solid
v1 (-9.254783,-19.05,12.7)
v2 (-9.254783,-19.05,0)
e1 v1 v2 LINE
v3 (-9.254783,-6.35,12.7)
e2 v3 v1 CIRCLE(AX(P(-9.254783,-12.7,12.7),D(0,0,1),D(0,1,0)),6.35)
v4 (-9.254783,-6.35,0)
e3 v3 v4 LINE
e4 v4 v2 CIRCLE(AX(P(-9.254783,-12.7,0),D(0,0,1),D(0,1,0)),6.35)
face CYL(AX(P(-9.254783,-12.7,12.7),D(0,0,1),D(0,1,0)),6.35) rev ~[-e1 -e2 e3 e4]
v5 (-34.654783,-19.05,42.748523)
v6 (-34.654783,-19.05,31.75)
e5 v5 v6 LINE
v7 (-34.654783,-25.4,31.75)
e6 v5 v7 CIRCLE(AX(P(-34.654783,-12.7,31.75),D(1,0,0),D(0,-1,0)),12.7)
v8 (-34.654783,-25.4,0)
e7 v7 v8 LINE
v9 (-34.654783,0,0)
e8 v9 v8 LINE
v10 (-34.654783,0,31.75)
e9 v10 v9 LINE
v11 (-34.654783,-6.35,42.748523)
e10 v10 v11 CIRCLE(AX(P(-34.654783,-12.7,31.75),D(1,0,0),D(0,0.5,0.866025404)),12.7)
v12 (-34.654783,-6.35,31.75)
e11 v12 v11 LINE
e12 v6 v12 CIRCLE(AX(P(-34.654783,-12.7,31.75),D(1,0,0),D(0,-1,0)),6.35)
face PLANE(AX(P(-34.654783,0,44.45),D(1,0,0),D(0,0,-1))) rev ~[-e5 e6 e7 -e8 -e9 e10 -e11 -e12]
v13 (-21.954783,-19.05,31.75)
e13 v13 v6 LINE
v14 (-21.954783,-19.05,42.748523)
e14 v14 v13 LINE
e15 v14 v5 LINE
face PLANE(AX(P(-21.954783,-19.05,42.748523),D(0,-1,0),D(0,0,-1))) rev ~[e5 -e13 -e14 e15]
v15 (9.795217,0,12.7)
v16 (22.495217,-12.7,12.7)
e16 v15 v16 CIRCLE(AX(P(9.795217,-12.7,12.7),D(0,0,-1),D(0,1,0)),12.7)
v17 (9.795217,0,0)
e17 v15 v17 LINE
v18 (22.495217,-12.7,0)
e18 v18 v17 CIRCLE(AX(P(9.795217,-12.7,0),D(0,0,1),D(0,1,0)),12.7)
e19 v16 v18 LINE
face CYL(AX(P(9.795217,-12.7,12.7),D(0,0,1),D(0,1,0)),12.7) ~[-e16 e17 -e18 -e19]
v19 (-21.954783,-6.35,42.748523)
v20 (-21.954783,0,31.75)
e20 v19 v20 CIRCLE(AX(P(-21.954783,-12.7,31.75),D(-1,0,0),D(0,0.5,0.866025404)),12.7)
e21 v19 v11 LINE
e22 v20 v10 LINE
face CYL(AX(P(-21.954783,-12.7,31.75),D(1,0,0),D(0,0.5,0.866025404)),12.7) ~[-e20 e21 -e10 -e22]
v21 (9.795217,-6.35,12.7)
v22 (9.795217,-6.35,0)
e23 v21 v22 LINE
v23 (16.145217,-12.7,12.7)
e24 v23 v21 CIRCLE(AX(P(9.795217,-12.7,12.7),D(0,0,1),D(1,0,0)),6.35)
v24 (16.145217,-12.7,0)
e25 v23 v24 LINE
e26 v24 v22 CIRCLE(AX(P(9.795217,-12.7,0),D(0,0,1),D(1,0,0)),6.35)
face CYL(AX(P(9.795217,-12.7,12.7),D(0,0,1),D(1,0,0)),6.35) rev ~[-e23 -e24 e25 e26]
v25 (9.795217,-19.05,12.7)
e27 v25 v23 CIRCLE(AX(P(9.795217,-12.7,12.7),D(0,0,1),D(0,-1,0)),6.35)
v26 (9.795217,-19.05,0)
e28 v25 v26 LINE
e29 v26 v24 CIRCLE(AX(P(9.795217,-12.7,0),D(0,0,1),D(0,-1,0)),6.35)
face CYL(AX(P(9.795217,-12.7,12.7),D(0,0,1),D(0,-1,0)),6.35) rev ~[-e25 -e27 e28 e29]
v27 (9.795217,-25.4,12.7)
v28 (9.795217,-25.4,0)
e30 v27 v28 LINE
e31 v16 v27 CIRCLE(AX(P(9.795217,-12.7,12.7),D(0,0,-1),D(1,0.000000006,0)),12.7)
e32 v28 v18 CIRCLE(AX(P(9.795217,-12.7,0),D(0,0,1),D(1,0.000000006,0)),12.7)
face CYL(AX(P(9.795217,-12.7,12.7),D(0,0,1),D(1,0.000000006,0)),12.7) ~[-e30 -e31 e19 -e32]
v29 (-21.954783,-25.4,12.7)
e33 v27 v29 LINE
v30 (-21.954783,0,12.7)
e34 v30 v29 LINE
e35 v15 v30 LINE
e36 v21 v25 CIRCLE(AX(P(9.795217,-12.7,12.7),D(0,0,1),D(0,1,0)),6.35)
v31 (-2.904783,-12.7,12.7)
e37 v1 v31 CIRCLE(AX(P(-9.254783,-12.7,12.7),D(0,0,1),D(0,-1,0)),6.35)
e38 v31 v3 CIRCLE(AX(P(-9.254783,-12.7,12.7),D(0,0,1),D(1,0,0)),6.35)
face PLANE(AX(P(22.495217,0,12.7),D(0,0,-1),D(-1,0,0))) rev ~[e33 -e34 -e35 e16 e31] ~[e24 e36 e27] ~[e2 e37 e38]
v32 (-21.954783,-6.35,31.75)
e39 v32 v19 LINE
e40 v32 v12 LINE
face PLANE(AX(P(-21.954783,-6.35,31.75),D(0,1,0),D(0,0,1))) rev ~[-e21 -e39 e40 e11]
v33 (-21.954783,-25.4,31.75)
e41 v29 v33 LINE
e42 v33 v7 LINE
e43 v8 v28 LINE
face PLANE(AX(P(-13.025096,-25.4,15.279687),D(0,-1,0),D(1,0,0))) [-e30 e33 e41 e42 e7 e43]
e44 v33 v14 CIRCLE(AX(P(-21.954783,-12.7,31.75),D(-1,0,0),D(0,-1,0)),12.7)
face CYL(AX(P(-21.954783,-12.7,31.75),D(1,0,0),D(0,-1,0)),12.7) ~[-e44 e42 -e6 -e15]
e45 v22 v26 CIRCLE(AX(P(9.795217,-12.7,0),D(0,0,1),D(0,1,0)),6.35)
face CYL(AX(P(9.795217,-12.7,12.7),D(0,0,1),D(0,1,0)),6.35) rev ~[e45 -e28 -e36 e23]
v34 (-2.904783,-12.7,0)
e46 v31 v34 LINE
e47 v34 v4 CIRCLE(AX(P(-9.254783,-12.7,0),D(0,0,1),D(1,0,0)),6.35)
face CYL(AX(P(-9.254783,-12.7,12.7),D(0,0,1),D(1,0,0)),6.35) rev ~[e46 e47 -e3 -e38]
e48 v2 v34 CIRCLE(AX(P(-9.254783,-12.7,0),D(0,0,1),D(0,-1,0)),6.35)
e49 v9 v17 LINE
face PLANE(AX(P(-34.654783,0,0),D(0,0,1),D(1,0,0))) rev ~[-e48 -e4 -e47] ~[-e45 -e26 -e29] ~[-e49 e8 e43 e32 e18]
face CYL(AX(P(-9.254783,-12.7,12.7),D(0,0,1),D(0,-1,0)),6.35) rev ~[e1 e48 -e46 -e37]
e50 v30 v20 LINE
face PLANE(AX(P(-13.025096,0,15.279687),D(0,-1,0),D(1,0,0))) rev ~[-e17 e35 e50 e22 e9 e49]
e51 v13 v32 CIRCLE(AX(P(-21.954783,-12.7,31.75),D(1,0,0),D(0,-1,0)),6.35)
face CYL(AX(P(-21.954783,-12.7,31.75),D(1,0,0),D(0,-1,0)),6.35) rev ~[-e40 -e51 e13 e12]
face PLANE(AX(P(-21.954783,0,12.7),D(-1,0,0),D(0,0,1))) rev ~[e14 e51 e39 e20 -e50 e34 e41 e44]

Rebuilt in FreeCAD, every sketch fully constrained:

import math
import FreeCAD as App
import Part
import Sketcher
from FreeCAD import Vector
Q = App.Units.Quantity

doc = App.newDocument("Part")
params = doc.addObject("Spreadsheet::Sheet", "Params")
for row, (alias, value) in enumerate([
    ("sketch1_width", "0.5 in"),
    ("sketch1_width2", "2.25 in"),
    ("pad1_length", "1 in"),
    ("sketch2_radius", "0.5 in"),
    ("sketch2_radius2", "0.25 in"),
    ("sketch3_radius", "0.5 in"),
    ("sketch3_radius2", "0.25 in"),
    ("sketch3_height", "0.5 in"),
], start=1):
    params.set(f"A{row}", alias)
    params.set(f"B{row}", "=" + value)
    params.setAlias(f"B{row}", alias)

body = doc.addObject("PartDesign::Body", "Body")

# Sketch on XZ plane
sketch1 = body.newObject("Sketcher::SketchObject", "Sketch")
sketch1.AttachmentSupport = (doc.getObject("XZ_Plane"), [""])
sketch1.MapMode = "FlatFace"
sketch1.addGeometry(Part.LineSegment(Vector(-35, 44, 0), Vector(-35, 0, 0)), False)
sketch1.addGeometry(Part.LineSegment(Vector(-35, 0, 0), Vector(22, 0, 0)), False)
sketch1.addGeometry(Part.LineSegment(Vector(22, 0, 0), Vector(22, 13, 0)), False)
sketch1.addGeometry(Part.LineSegment(Vector(22, 13, 0), Vector(-22, 13, 0)), False)
sketch1.addGeometry(Part.LineSegment(Vector(-22, 13, 0), Vector(-22, 44, 0)), False)
sketch1.addGeometry(Part.LineSegment(Vector(-22, 44, 0), Vector(-35, 44, 0)), False)
sketch1.addConstraint(Sketcher.Constraint("Coincident", 0, 2, 1, 1))
sketch1.addConstraint(Sketcher.Constraint("Coincident", 1, 2, 2, 1))
sketch1.addConstraint(Sketcher.Constraint("Coincident", 2, 2, 3, 1))
sketch1.addConstraint(Sketcher.Constraint("Coincident", 3, 2, 4, 1))
sketch1.addConstraint(Sketcher.Constraint("Coincident", 4, 2, 5, 1))
sketch1.addConstraint(Sketcher.Constraint("Coincident", 5, 2, 0, 1))
sketch1.addConstraint(Sketcher.Constraint("Vertical", 0))
sketch1.addConstraint(Sketcher.Constraint("Horizontal", 1))
sketch1.addConstraint(Sketcher.Constraint("Vertical", 2))
sketch1.addConstraint(Sketcher.Constraint("Horizontal", 3))
sketch1.addConstraint(Sketcher.Constraint("Vertical", 4))
sketch1.addConstraint(Sketcher.Constraint("Horizontal", 5))
sketch1.addConstraint(Sketcher.Constraint("PointOnObject", 0, 2, -1))
sketch1.addConstraint(Sketcher.Constraint("Equal", 3, 0))
sketch1.addConstraint(Sketcher.Constraint("Equal", 5, 2))
sketch1.addConstraint(Sketcher.Constraint("DistanceX", 5, 2, 5, 1, Q("0.5 in")))
sketch1.addConstraint(Sketcher.Constraint("DistanceX", 1, 1, 1, 2, Q("2.25 in")))
sketch1.addConstraint(Sketcher.Constraint("DistanceX", 0, 2, -1, 1, 34.654783))
sketch1.setExpression("Constraints[15]", "Params.sketch1_width")
sketch1.setExpression("Constraints[16]", "Params.sketch1_width2")
pad1 = body.newObject("PartDesign::Pad", "Pad")
pad1.Profile = sketch1
pad1.setExpression("Length", "Params.pad1_length")

# Sketch on XY plane
sketch2 = body.newObject("Sketcher::SketchObject", "Sketch001")
sketch2.AttachmentSupport = (doc.getObject("XY_Plane"), [""])
sketch2.MapMode = "FlatFace"
sketch2.AttachmentOffset = App.Placement(Vector(0, 0, 0.5 * 25.4), App.Rotation())
sketch2.addGeometry(Part.ArcOfCircle(Part.Circle(Vector(-9, -13, 0), Vector(0, 0, 1), 6), math.radians(0), math.radians(90)), False)
sketch2.addGeometry(Part.ArcOfCircle(Part.Circle(Vector(-9, -13, 0), Vector(0, 0, 1), 6), math.radians(90), math.radians(270)), False)
sketch2.addGeometry(Part.ArcOfCircle(Part.Circle(Vector(-9, -13, 0), Vector(0, 0, 1), 6), math.radians(-90), math.radians(0)), False)
sketch2.addGeometry(Part.ArcOfCircle(Part.Circle(Vector(10, -13, 0), Vector(0, 0, 1), 6), math.radians(90), math.radians(270)), False)
sketch2.addGeometry(Part.ArcOfCircle(Part.Circle(Vector(10, -13, 0), Vector(0, 0, 1), 6), math.radians(-90), math.radians(0)), False)
sketch2.addGeometry(Part.ArcOfCircle(Part.Circle(Vector(10, -13, 0), Vector(0, 0, 1), 6), math.radians(0), math.radians(90)), False)
sketch2.addGeometry(Part.LineSegment(Vector(22, 0, 0), Vector(10, 0, 0)), False)
sketch2.addGeometry(Part.ArcOfCircle(Part.Circle(Vector(10, -13, 0), Vector(0, 0, 1), 13), math.radians(0), math.radians(90)), False)
sketch2.addGeometry(Part.LineSegment(Vector(22, -13, 0), Vector(22, 0, 0)), False)
sketch2.addGeometry(Part.LineSegment(Vector(22, -25, 0), Vector(22, -13, 0)), False)
sketch2.addGeometry(Part.ArcOfCircle(Part.Circle(Vector(10, -13, 0), Vector(0, 0, 1), 13), math.radians(-90), math.radians(0)), False)
sketch2.addGeometry(Part.LineSegment(Vector(10, -25, 0), Vector(22, -25, 0)), False)
sketch2.addConstraint(Sketcher.Constraint("Tangent", 0, 2, 1, 1))
sketch2.addConstraint(Sketcher.Constraint("Tangent", 1, 2, 2, 1))
sketch2.addConstraint(Sketcher.Constraint("Tangent", 2, 2, 0, 1))
sketch2.addConstraint(Sketcher.Constraint("Tangent", 3, 2, 4, 1))
sketch2.addConstraint(Sketcher.Constraint("Tangent", 4, 2, 5, 1))
sketch2.addConstraint(Sketcher.Constraint("Tangent", 5, 2, 3, 1))
sketch2.addConstraint(Sketcher.Constraint("Tangent", 6, 2, 7, 2))
sketch2.addConstraint(Sketcher.Constraint("Tangent", 7, 1, 8, 1))
sketch2.addConstraint(Sketcher.Constraint("Coincident", 8, 2, 6, 1))
sketch2.addConstraint(Sketcher.Constraint("Tangent", 9, 2, 10, 2))
sketch2.addConstraint(Sketcher.Constraint("Tangent", 10, 1, 11, 1))
sketch2.addConstraint(Sketcher.Constraint("Coincident", 11, 2, 9, 1))
sketch2.addConstraint(Sketcher.Constraint("Horizontal", 6))
sketch2.addConstraint(Sketcher.Constraint("Vertical", 8))
sketch2.addConstraint(Sketcher.Constraint("Vertical", 9))
sketch2.addConstraint(Sketcher.Constraint("Horizontal", 11))
sketch2.addConstraint(Sketcher.Constraint("Coincident", 7, 3, 3, 3))
sketch2.addConstraint(Sketcher.Constraint("Coincident", 10, 3, 3, 3))
sketch2.addConstraint(Sketcher.Constraint("Equal", 2, 3))
sketch2.addConstraint(Sketcher.Constraint("Equal", 7, 10))
sketch2.addConstraint(Sketcher.Constraint("PointOnObject", 6, 2, -1))
sketch2.addConstraint(Sketcher.Constraint("Horizontal", 2, 3, 3, 3))
sketch2.addConstraint(Sketcher.Constraint("Horizontal", 10, 3, 2, 2))
sketch2.addConstraint(Sketcher.Constraint("Horizontal", 2, 2, 4, 2))
sketch2.addConstraint(Sketcher.Constraint("Vertical", 2, 3, 0, 2))
sketch2.addConstraint(Sketcher.Constraint("Vertical", 0, 2, 1, 2))
sketch2.addConstraint(Sketcher.Constraint("Vertical", 10, 3, 3, 2))
sketch2.addConstraint(Sketcher.Constraint("Vertical", 3, 2, 5, 2))
sketch2.addConstraint(Sketcher.Constraint("Radius", 7, Q("0.5 in")))
sketch2.addConstraint(Sketcher.Constraint("Radius", 0, Q("0.25 in")))
sketch2.addConstraint(Sketcher.Constraint("DistanceX", 0, 3, 3, 3, Q("0.75 in")))
sketch2.addConstraint(Sketcher.Constraint("DistanceX", 0, 3, -1, 1, 9.254783))
sketch2.setExpression("Constraints[28]", "Params.sketch2_radius")
sketch2.setExpression("Constraints[29]", "Params.sketch2_radius2")
pocket1 = body.newObject("PartDesign::Pocket", "Pocket")
pocket1.Profile = sketch2
pocket1.Type = "ThroughAll"

# Sketch on YZ plane
sketch3 = body.newObject("Sketcher::SketchObject", "Sketch002")
sketch3.AttachmentSupport = (doc.getObject("YZ_Plane"), [""])
sketch3.MapMode = "FlatFace"
sketch3.AttachmentOffset = App.Placement(Vector(0, 0, -21.954783), App.Rotation())
sketch3.addGeometry(Part.LineSegment(Vector(-19, 43, 0), Vector(-19, 32, 0)), False)
sketch3.addGeometry(Part.ArcOfCircle(Part.Circle(Vector(-13, 32, 0), Vector(0, 0, 1), 6), math.radians(180), math.radians(360)), False)
sketch3.addGeometry(Part.LineSegment(Vector(-6, 32, 0), Vector(-6, 43, 0)), False)
sketch3.addGeometry(Part.ArcOfCircle(Part.Circle(Vector(-13, 32, 0), Vector(0, 0, 1), 13), math.radians(0), math.radians(60)), False)
sketch3.addGeometry(Part.LineSegment(Vector(0, 32, 0), Vector(0, 44, 0)), False)
sketch3.addGeometry(Part.LineSegment(Vector(0, 44, 0), Vector(-25, 44, 0)), False)
sketch3.addGeometry(Part.LineSegment(Vector(-25, 44, 0), Vector(-25, 32, 0)), False)
sketch3.addGeometry(Part.ArcOfCircle(Part.Circle(Vector(-13, 32, 0), Vector(0, 0, 1), 13), math.radians(120), math.radians(180)), False)
sketch3.addConstraint(Sketcher.Constraint("Tangent", 0, 2, 1, 1))
sketch3.addConstraint(Sketcher.Constraint("Tangent", 1, 2, 2, 1))
sketch3.addConstraint(Sketcher.Constraint("Coincident", 2, 2, 3, 2))
sketch3.addConstraint(Sketcher.Constraint("Tangent", 3, 1, 4, 1))
sketch3.addConstraint(Sketcher.Constraint("Coincident", 4, 2, 5, 1))
sketch3.addConstraint(Sketcher.Constraint("Coincident", 5, 2, 6, 1))
sketch3.addConstraint(Sketcher.Constraint("Tangent", 6, 2, 7, 2))
sketch3.addConstraint(Sketcher.Constraint("Coincident", 7, 1, 0, 1))
sketch3.addConstraint(Sketcher.Constraint("Vertical", 0))
sketch3.addConstraint(Sketcher.Constraint("Vertical", 2))
sketch3.addConstraint(Sketcher.Constraint("Vertical", 4))
sketch3.addConstraint(Sketcher.Constraint("Horizontal", 5))
sketch3.addConstraint(Sketcher.Constraint("Vertical", 6))
sketch3.addConstraint(Sketcher.Constraint("Coincident", 3, 3, 1, 3))
sketch3.addConstraint(Sketcher.Constraint("Coincident", 7, 3, 1, 3))
sketch3.addConstraint(Sketcher.Constraint("Equal", 3, 7))
sketch3.addConstraint(Sketcher.Constraint("PointOnObject", 3, 1, -2))
sketch3.addConstraint(Sketcher.Constraint("Radius", 3, Q("0.5 in")))
sketch3.addConstraint(Sketcher.Constraint("Radius", 1, Q("0.25 in")))
sketch3.addConstraint(Sketcher.Constraint("DistanceY", 4, 1, 4, 2, Q("0.5 in")))
sketch3.addConstraint(Sketcher.Constraint("DistanceY", -1, 1, 1, 3, Q("1.25 in")))
sketch3.setExpression("Constraints[17]", "Params.sketch3_radius")
sketch3.setExpression("Constraints[18]", "Params.sketch3_radius2")
sketch3.setExpression("Constraints[19]", "Params.sketch3_height")
pocket2 = body.newObject("PartDesign::Pocket", "Pocket001")
pocket2.Profile = sketch3
pocket2.Type = "ThroughAll"

doc.recompute()
